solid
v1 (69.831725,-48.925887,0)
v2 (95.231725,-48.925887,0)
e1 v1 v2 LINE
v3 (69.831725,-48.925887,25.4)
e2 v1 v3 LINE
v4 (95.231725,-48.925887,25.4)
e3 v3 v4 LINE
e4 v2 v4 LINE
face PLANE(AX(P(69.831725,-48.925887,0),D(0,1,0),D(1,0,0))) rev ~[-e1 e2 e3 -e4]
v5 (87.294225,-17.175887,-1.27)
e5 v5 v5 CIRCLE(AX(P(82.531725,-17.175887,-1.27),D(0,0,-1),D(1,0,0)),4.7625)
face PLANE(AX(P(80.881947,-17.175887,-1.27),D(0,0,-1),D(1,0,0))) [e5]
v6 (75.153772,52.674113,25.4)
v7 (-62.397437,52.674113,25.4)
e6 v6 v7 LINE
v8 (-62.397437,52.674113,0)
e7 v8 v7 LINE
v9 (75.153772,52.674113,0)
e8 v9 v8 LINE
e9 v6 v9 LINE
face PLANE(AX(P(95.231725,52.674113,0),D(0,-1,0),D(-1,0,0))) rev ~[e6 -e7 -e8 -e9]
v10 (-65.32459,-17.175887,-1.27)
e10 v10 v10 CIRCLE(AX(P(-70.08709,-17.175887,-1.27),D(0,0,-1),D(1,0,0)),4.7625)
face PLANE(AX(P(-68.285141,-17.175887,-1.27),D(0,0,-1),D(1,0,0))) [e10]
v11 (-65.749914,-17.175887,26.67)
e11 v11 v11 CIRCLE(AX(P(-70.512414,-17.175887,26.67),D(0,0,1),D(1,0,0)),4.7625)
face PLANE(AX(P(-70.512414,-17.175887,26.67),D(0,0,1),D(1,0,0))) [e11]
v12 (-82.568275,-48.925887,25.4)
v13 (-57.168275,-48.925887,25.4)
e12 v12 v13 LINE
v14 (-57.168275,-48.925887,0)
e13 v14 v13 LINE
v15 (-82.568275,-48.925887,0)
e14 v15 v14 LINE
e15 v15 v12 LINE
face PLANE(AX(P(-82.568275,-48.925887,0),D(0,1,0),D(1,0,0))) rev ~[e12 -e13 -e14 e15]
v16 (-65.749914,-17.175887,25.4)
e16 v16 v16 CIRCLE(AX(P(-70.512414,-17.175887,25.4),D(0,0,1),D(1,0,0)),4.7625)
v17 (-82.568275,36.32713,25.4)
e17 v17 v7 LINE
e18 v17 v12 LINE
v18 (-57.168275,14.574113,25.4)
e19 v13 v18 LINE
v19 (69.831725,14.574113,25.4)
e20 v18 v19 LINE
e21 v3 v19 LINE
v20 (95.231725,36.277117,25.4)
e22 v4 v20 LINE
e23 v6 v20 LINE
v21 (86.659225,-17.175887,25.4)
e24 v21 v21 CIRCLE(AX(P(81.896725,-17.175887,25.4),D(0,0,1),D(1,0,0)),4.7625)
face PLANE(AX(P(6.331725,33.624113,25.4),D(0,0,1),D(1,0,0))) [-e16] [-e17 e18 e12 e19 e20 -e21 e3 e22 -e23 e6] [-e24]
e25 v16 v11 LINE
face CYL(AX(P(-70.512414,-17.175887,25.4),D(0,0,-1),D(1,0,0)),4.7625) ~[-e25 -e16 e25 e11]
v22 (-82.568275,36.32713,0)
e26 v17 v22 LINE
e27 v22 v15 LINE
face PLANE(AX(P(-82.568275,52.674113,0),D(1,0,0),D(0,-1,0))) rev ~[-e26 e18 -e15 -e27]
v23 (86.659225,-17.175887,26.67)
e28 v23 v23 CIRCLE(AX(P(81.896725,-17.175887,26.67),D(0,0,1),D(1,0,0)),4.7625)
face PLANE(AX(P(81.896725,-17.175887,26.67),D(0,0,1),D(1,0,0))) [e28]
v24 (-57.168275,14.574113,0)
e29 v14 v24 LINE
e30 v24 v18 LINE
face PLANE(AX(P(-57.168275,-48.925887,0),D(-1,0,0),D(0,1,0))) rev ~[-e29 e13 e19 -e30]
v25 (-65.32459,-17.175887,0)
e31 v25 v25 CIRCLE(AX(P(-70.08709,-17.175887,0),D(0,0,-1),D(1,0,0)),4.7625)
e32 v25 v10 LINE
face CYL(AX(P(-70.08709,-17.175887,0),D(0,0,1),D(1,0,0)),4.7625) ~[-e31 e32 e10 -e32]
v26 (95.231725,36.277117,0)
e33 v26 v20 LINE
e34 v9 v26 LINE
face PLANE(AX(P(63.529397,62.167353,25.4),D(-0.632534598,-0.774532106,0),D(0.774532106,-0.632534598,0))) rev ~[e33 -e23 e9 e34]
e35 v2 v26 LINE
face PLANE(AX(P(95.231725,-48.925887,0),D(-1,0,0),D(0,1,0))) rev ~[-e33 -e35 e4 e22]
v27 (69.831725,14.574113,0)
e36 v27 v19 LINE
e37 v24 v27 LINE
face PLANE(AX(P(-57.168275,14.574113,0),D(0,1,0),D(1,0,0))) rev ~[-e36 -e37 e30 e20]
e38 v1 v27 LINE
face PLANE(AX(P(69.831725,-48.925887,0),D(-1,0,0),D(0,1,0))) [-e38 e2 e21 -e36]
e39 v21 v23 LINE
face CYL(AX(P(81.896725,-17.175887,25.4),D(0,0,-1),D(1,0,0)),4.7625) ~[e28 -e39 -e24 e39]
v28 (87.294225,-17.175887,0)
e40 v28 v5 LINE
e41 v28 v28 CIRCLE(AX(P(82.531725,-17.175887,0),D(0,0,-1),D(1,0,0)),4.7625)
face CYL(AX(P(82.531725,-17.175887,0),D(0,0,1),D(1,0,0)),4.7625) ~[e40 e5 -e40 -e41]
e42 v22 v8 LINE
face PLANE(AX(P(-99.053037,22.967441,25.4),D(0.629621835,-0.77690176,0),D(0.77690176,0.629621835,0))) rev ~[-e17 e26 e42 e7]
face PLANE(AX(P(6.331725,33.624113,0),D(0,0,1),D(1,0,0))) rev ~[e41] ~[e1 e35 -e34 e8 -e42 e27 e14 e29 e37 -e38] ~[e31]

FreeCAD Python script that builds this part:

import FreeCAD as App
import Part
import Sketcher
from FreeCAD import Vector
Q = App.Units.Quantity


def add_polygon(sketch, points):
    """Adds a closed chain of lines whose ends are joined by coincident constraints."""
    first, n = sketch.GeometryCount, len(points)
    for a, b in zip(points, points[1:] + points[:1]):
        sketch.addGeometry(Part.LineSegment(App.Vector(*a, 0), App.Vector(*b, 0)), False)
    for i in range(n):
        sketch.addConstraint(Sketcher.Constraint("Coincident", first + i, 2, first + (i + 1) % n, 1))

doc = App.newDocument("Part")
params = doc.addObject("Spreadsheet::Sheet", "Params")
for row, (alias, value) in enumerate([
    ("sketch1_width", "7 in"),
    ("sketch1_width2", "1 in"),
    ("sketch1_height", "4 in"),
    ("sketch1_height2", "2.5 in"),
    ("pad1_length", "1 in"),
    ("pocket1_length", "1 in"),
    ("sketch3_diameter", "0.375 in"),
    ("pad2_length", "0.05 in"),
    ("sketch4_diameter", "0.375 in"),
    ("pad3_length", "0.05 in"),
], start=1):
    params.set(f"A{row}", alias)
    params.set(f"B{row}", "=" + value)
    params.setAlias(f"B{row}", alias)

body = doc.addObject("PartDesign::Body", "Body")

sketch1 = doc.addObject("Sketcher::SketchObject", "Sketch")
body.addObject(sketch1)
sketch1.AttachmentSupport = (doc.XY_Plane, [""])
sketch1.MapMode = "FlatFace"
add_polygon(sketch1, [(95.231725, 52.674113), (-82.568275, 52.674113), (-82.568275, -48.925887), (-57.168275, -48.925887), (-57.168275, 14.574113), (69.831725, 14.574113), (69.831725, -48.925887), (95.231725, -48.925887)])
sketch1.addConstraint(Sketcher.Constraint("Horizontal", 0))
sketch1.addConstraint(Sketcher.Constraint("Vertical", 1))
sketch1.addConstraint(Sketcher.Constraint("Horizontal", 2))
sketch1.addConstraint(Sketcher.Constraint("Vertical", 3))
sketch1.addConstraint(Sketcher.Constraint("Horizontal", 4))
sketch1.addConstraint(Sketcher.Constraint("Vertical", 5))
sketch1.addConstraint(Sketcher.Constraint("Horizontal", 6))
sketch1.addConstraint(Sketcher.Constraint("Vertical", 7))
sketch1.addConstraint(Sketcher.Constraint("Horizontal", 2, 2, 5, 2))
sketch1.addConstraint(Sketcher.Constraint("Equal", 2, 6))
sketch1.addConstraint(Sketcher.Constraint("DistanceX", 0, 2, 0, 1, Q("7 in")))
sketch1.addConstraint(Sketcher.Constraint("DistanceX", 2, 1, 2, 2, Q("1 in")))
sketch1.addConstraint(Sketcher.Constraint("DistanceY", 1, 2, 1, 1, Q("4 in")))
sketch1.addConstraint(Sketcher.Constraint("DistanceY", 3, 1, 3, 2, Q("2.5 in")))
sketch1.addConstraint(Sketcher.Constraint("DistanceX", 0, 2, -1, 1, Q("82.568275 mm")))
sketch1.addConstraint(Sketcher.Constraint("DistanceY", -1, 1, 0, 2, Q("52.674113 mm")))
sketch1.setExpression("Constraints[18]", "Params.sketch1_width")
sketch1.setExpression("Constraints[19]", "Params.sketch1_width2")
sketch1.setExpression("Constraints[20]", "Params.sketch1_height")
sketch1.setExpression("Constraints[21]", "Params.sketch1_height2")
pad1 = doc.addObject("PartDesign::Pad", "Pad")
body.addObject(pad1)
pad1.Profile = sketch1
pad1.setExpression("Length", "Params.pad1_length")

sketch2 = doc.addObject("Sketcher::SketchObject", "Sketch001")
body.addObject(sketch2)
sketch2.AttachmentSupport = (doc.XY_Plane, [""])
sketch2.MapMode = "FlatFace"
sketch2.AttachmentOffset = App.Placement(Vector(0, 0, 1 * 25.4), App.Rotation())
add_polygon(sketch2, [(-104.480328, 40.283091), (-99.053037, 22.967441), (-44.521661, 67.161117), (-66.74772, 76.206612)])
add_polygon(sketch2, [(81.948961, 70.513717), (63.529397, 62.167353), (115.334432, 19.859905), (133.178386, 37.416055)])
sketch2.addConstraint(Sketcher.Constraint("DistanceX", 2, 2, 7, 2, Q("5.8542 in")))
sketch2.addConstraint(Sketcher.Constraint("DistanceY", 6, 2, 4, 2, Q("24.751298 mm")))
sketch2.addConstraint(Sketcher.Constraint("DistanceY", 1, 2, 7, 2, Q("3.3526 mm")))
sketch2.addConstraint(Sketcher.Constraint("Distance", 6, Q("25.032481 mm")))
sketch2.addConstraint(Sketcher.Constraint("Distance", 7, Q("60.991058 mm")))
sketch2.addConstraint(Sketcher.Constraint("DistanceY", -1, 1, 0, 2, Q("22.967441 mm")))
sketch2.addConstraint(Sketcher.Constraint("DistanceX", 1, 2, -1, 1, Q("44.521661 mm")))
sketch2.addConstraint(Sketcher.Constraint("DistanceX", 2, 2, -1, 1, Q("66.74772 mm")))
sketch2.addConstraint(Sketcher.Constraint("DistanceY", -1, 1, 2, 2, Q("76.206612 mm")))
sketch2.addConstraint(Sketcher.Constraint("DistanceX", 3, 2, -1, 1, Q("104.480328 mm")))
sketch2.addConstraint(Sketcher.Constraint("DistanceY", -1, 1, 3, 2, Q("40.283091 mm")))
sketch2.addConstraint(Sketcher.Constraint("DistanceX", -1, 1, 5, 2, Q("115.334432 mm")))
sketch2.addConstraint(Sketcher.Constraint("DistanceX", 3, 2, 0, 2, Q("5.427291 mm")))
sketch2.addConstraint(Sketcher.Constraint("DistanceX", 1, 2, 4, 2, Q("108.051058 mm")))
sketch2.addConstraint(Sketcher.Constraint("DistanceY", 4, 2, 2, 2, Q("14.039259 mm")))
sketch2.addConstraint(Sketcher.Constraint("DistanceY", 5, 2, 1, 2, Q("47.301212 mm")))
pocket1 = doc.addObject("PartDesign::Pocket", "Pocket")
body.addObject(pocket1)
pocket1.Profile = sketch2
pocket1.setExpression("Length", "Params.pocket1_length")

sketch3 = doc.addObject("Sketcher::SketchObject", "Sketch002")
body.addObject(sketch3)
sketch3.AttachmentSupport = (doc.XY_Plane, [""])
sketch3.MapMode = "FlatFace"
sketch3.AttachmentOffset = App.Placement(Vector(0, 0, 1 * 25.4), App.Rotation())
sketch3.addGeometry(Part.Circle(Vector(-70.512414, -17.175887, 0), Vector(0, 0, 1), 4.7625), False)
sketch3.addGeometry(Part.Circle(Vector(81.896725, -17.175887, 0), Vector(0, 0, 1), 4.7625), False)
sketch3.addConstraint(Sketcher.Constraint("Equal", 0, 1))
sketch3.addConstraint(Sketcher.Constraint("Horizontal", 0, 3, 1, 3))
sketch3.addConstraint(Sketcher.Constraint("Diameter", 0, Q("0.375 in")))
sketch3.addConstraint(Sketcher.Constraint("DistanceX", 0, 3, 1, 3, Q("152.409139 mm")))
sketch3.addConstraint(Sketcher.Constraint("DistanceX", 0, 3, -1, 1, Q("70.512414 mm")))
sketch3.addConstraint(Sketcher.Constraint("DistanceY", 0, 3, -1, 1, Q("17.175887 mm")))
sketch3.setExpression("Constraints[2]", "Params.sketch3_diameter")
pad2 = doc.addObject("PartDesign::Pad", "Pad001")
body.addObject(pad2)
pad2.Profile = sketch3
pad2.setExpression("Length", "Params.pad2_length")

sketch4 = doc.addObject("Sketcher::SketchObject", "Sketch003")
body.addObject(sketch4)
sketch4.AttachmentSupport = (doc.XY_Plane, [""])
sketch4.MapMode = "FlatFace"
sketch4.addGeometry(Part.Circle(Vector(82.531725, -17.175887, 0), Vector(0, 0, 1), 4.7625), False)
sketch4.addGeometry(Part.Circle(Vector(-70.08709, -17.175887, 0), Vector(0, 0, 1), 4.7625), False)
sketch4.addConstraint(Sketcher.Constraint("Equal", 0, 1))
sketch4.addConstraint(Sketcher.Constraint("Horizontal", 0, 3, 1, 3))
sketch4.addConstraint(Sketcher.Constraint("Diameter", 0, Q("0.375 in")))
sketch4.addConstraint(Sketcher.Constraint("DistanceX", 1, 3, -1, 1, Q("70.08709 mm")))
sketch4.addConstraint(Sketcher.Constraint("DistanceX", -1, 1, 0, 3, Q("82.531725 mm")))
sketch4.addConstraint(Sketcher.Constraint("DistanceY", 0, 3, -1, 1, Q("17.175887 mm")))
sketch4.setExpression("Constraints[2]", "Params.sketch4_diameter")
pad3 = doc.addObject("PartDesign::Pad", "Pad002")
body.addObject(pad3)
pad3.Profile = sketch4
pad3.setExpression("Length", "Params.pad3_length")
pad3.Reversed = True

doc.recompute()
